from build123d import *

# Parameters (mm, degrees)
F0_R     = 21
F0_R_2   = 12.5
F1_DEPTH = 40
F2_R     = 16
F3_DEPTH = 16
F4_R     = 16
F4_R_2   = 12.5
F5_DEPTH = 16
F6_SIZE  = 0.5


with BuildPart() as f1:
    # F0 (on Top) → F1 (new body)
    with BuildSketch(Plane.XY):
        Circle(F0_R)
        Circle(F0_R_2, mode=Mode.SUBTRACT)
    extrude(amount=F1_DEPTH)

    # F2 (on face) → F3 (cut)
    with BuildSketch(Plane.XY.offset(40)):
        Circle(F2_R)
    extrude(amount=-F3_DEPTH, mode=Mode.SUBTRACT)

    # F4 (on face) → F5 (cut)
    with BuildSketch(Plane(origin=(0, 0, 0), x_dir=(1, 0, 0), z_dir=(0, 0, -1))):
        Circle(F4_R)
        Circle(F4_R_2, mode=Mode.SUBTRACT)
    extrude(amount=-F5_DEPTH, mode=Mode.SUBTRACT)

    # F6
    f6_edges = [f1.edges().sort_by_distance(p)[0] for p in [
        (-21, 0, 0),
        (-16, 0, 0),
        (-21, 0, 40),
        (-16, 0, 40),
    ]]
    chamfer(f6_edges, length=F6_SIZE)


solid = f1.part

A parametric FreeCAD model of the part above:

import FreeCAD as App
import Part
import Sketcher

V = App.Vector


def edges_at(feature, points):
    """Names of the edges that pass closest to the given points."""
    edges = feature.Shape.Edges
    near = lambda p: min(range(len(edges)), key=lambda i: edges[i].distToShape(Part.Vertex(*p))[0])
    return sorted({f"Edge{near(p) + 1}" for p in points})

doc = App.newDocument("Part")
body = doc.addObject("PartDesign::Body", "Body")

sketch1 = body.newObject("Sketcher::SketchObject", "Sketch")
sketch1.AttachmentSupport = (doc.getObject("XY_Plane"), [""])
sketch1.MapMode = "FlatFace"
sketch1.addGeometry(Part.Circle(V(0, 0, 0), V(0, 0, 1), 21), False)
sketch1.addGeometry(Part.Circle(V(0, 0, 0), V(0, 0, 1), 12.5), False)
sketch1.addConstraint(Sketcher.Constraint("Coincident", 0, 3, -1, 1))
sketch1.addConstraint(Sketcher.Constraint("Coincident", 1, 3, -1, 1))
sketch1.addConstraint(Sketcher.Constraint("Diameter", 0, 42.0))
sketch1.addConstraint(Sketcher.Constraint("Diameter", 1, 25.0))
pad1 = body.newObject("PartDesign::Pad", "Pad")
pad1.Profile = sketch1
pad1.Length = 40

sketch2 = body.newObject("Sketcher::SketchObject", "Sketch001")
sketch2.AttachmentSupport = (doc.getObject("XY_Plane"), [""])
sketch2.MapMode = "FlatFace"
sketch2.AttachmentOffset = App.Placement(V(0, 0, 40), App.Rotation())
sketch2.addGeometry(Part.Circle(V(0, 0, 0), V(0, 0, 1), 16), False)
sketch2.addConstraint(Sketcher.Constraint("Coincident", 0, 3, -1, 1))
sketch2.addConstraint(Sketcher.Constraint("Diameter", 0, 32.0))
pocket1 = body.newObject("PartDesign::Pocket", "Pocket")
pocket1.Profile = sketch2
pocket1.Length = 16

sketch3 = body.newObject("Sketcher::SketchObject", "Sketch002")
sketch3.AttachmentSupport = (doc.getObject("XY_Plane"), [""])
sketch3.MapMode = "FlatFace"
sketch3.addGeometry(Part.Circle(V(0, 0, 0), V(0, 0, 1), 16), False)
sketch3.addGeometry(Part.Circle(V(0, 0, 0), V(0, 0, 1), 12.5), False)
sketch3.addConstraint(Sketcher.Constraint("Coincident", 0, 3, -1, 1))
sketch3.addConstraint(Sketcher.Constraint("Coincident", 1, 3, -1, 1))
sketch3.addConstraint(Sketcher.Constraint("Diameter", 0, 32.0))
sketch3.addConstraint(Sketcher.Constraint("Diameter", 1, 25.0))
pocket2 = body.newObject("PartDesign::Pocket", "Pocket001")
pocket2.Profile = sketch3
pocket2.Length = 16
pocket2.Reversed = True
doc.recompute()

chamfer = body.newObject("PartDesign::Chamfer", "Chamfer")
chamfer.Base = (pocket2, edges_at(pocket2, [
    (-21, 0, 0),
    (-16, 0, 0),
    (-21, 0, 40),
    (-16, 0, 40),
]))
chamfer.Size = 0.5

doc.recompute()
